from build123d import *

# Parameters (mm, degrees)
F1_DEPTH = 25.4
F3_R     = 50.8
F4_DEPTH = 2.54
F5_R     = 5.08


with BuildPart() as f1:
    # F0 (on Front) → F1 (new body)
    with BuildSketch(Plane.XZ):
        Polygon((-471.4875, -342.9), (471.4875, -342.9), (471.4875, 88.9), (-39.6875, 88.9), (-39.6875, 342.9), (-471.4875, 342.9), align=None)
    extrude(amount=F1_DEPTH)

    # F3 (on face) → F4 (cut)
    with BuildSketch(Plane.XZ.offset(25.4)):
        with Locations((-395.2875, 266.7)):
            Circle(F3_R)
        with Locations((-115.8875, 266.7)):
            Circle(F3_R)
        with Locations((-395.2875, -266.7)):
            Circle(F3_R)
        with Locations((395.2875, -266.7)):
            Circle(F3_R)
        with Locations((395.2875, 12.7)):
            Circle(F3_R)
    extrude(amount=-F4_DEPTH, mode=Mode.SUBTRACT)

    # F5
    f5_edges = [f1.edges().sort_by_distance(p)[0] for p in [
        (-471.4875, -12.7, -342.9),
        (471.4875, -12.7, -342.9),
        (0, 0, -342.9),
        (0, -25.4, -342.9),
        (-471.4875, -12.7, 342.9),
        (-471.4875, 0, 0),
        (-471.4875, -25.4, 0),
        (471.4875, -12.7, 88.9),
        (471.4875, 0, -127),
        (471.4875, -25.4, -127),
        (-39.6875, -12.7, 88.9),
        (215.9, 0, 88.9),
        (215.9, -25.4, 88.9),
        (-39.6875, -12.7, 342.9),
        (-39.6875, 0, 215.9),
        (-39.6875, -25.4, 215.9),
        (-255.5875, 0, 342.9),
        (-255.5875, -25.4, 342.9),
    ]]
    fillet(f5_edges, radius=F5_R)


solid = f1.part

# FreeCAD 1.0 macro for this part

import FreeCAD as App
import Part
import Sketcher

V = App.Vector
Q = App.Units.Quantity


def edges_at(feature, points):
    """Names of the edges that pass closest to the given points."""
    edges = feature.Shape.Edges
    near = lambda p: min(range(len(edges)), key=lambda i: edges[i].distToShape(Part.Vertex(*p))[0])
    return sorted({f"Edge{near(p) + 1}" for p in points})


def add_polygon(sketch, points):
    """Adds a closed chain of lines whose ends are joined by coincident constraints."""
    first, n = sketch.GeometryCount, len(points)
    for a, b in zip(points, points[1:] + points[:1]):
        sketch.addGeometry(Part.LineSegment(App.Vector(*a, 0), App.Vector(*b, 0)), False)
    for i in range(n):
        sketch.addConstraint(Sketcher.Constraint("Coincident", first + i, 2, first + (i + 1) % n, 1))

doc = App.newDocument("Part")
body = doc.addObject("PartDesign::Body", "Body")

sketch1 = body.newObject("Sketcher::SketchObject", "Sketch")
sketch1.AttachmentSupport = (doc.getObject("XZ_Plane"), [""])
sketch1.MapMode = "FlatFace"
add_polygon(sketch1, [(-471, -343), (471, -343), (471, 89), (-40, 89), (-40, 343), (-471, 343)])
sketch1.addConstraint([
    Sketcher.Constraint("Horizontal", 0),
    Sketcher.Constraint("Vertical", 1),
    Sketcher.Constraint("Horizontal", 2),
    Sketcher.Constraint("Vertical", 3),
    Sketcher.Constraint("Horizontal", 4),
    Sketcher.Constraint("Vertical", 5),
    Sketcher.Constraint("Symmetric", 0, 2, 4, 2, -1, 1),
    Sketcher.Constraint("Equal", 4, 1),
    Sketcher.Constraint("DistanceX", 4, 2, 4, 1, Q("17 in")),
    Sketcher.Constraint("DistanceY", 3, 1, 3, 2, Q("10 in")),
    Sketcher.Constraint("DistanceX", 0, 1, 0, 2, Q("37.125 in")),
])
pad1 = body.newObject("PartDesign::Pad", "Pad")
pad1.Profile = sketch1
pad1.Length = Q("1 in")

sketch2 = body.newObject("Sketcher::SketchObject", "Sketch001")
sketch2.AttachmentSupport = (doc.getObject("XZ_Plane"), [""])
sketch2.MapMode = "FlatFace"
sketch2.AttachmentOffset = App.Placement(V(0, 0, 1 * 25.4), App.Rotation())
sketch2.addGeometry([
    Part.Circle(V(-395, 267, 0), V(0, 0, 1), 51),
    Part.Circle(V(-116, 267, 0), V(0, 0, 1), 51),
    Part.Circle(V(-395, -267, 0), V(0, 0, 1), 51),
    Part.Circle(V(395, -267, 0), V(0, 0, 1), 51),
    Part.Circle(V(395, 13, 0), V(0, 0, 1), 51),
], False)
sketch2.addConstraint([
    Sketcher.Constraint("Equal", 0, 1),
    Sketcher.Constraint("Equal", 1, 2),
    Sketcher.Constraint("Equal", 2, 3),
    Sketcher.Constraint("Equal", 3, 4),
    Sketcher.Constraint("Symmetric", 0, 3, 3, 3, -1, 1),
    Sketcher.Constraint("Symmetric", 2, 3, 3, 3, -2),
    Sketcher.Constraint("Horizontal", 0, 3, 1, 3),
    Sketcher.Constraint("Vertical", 3, 3, 4, 3),
    Sketcher.Constraint("Diameter", 0, Q("4 in")),
    Sketcher.Constraint("DistanceX", 0, 3, 1, 3, Q("11 in")),
    Sketcher.Constraint("DistanceY", 2, 3, 0, 3, Q("21 in")),
    Sketcher.Constraint("DistanceY", 3, 3, 4, 3, Q("11 in")),
    Sketcher.Constraint("DistanceX", 0, 3, -1, 1, Q("15.5625 in")),
])
pocket1 = body.newObject("PartDesign::Pocket", "Pocket")
pocket1.Profile = sketch2
pocket1.Length = Q("0.1 in")
doc.recompute()

fillet = body.newObject("PartDesign::Fillet", "Fillet")
fillet.Base = (pocket1, edges_at(pocket1, [
    (-471.488, -12.7, -342.9),
    (471.488, -12.7, -342.9),
    (0, 0, -342.9),
    (0, -25.4, -342.9),
    (-471.488, -12.7, 342.9),
    (-471.488, 0, 0),
    (-471.488, -25.4, 0),
    (471.488, -12.7, 88.9),
    (471.488, 0, -127),
    (471.488, -25.4, -127),
    (-39.688, -12.7, 88.9),
    (215.9, 0, 88.9),
    (215.9, -25.4, 88.9),
    (-39.688, -12.7, 342.9),
    (-39.688, 0, 215.9),
    (-39.688, -25.4, 215.9),
    (-255.588, 0, 342.9),
    (-255.588, -25.4, 342.9),
]))
fillet.Radius = Q("0.2 in")

doc.recompute()
